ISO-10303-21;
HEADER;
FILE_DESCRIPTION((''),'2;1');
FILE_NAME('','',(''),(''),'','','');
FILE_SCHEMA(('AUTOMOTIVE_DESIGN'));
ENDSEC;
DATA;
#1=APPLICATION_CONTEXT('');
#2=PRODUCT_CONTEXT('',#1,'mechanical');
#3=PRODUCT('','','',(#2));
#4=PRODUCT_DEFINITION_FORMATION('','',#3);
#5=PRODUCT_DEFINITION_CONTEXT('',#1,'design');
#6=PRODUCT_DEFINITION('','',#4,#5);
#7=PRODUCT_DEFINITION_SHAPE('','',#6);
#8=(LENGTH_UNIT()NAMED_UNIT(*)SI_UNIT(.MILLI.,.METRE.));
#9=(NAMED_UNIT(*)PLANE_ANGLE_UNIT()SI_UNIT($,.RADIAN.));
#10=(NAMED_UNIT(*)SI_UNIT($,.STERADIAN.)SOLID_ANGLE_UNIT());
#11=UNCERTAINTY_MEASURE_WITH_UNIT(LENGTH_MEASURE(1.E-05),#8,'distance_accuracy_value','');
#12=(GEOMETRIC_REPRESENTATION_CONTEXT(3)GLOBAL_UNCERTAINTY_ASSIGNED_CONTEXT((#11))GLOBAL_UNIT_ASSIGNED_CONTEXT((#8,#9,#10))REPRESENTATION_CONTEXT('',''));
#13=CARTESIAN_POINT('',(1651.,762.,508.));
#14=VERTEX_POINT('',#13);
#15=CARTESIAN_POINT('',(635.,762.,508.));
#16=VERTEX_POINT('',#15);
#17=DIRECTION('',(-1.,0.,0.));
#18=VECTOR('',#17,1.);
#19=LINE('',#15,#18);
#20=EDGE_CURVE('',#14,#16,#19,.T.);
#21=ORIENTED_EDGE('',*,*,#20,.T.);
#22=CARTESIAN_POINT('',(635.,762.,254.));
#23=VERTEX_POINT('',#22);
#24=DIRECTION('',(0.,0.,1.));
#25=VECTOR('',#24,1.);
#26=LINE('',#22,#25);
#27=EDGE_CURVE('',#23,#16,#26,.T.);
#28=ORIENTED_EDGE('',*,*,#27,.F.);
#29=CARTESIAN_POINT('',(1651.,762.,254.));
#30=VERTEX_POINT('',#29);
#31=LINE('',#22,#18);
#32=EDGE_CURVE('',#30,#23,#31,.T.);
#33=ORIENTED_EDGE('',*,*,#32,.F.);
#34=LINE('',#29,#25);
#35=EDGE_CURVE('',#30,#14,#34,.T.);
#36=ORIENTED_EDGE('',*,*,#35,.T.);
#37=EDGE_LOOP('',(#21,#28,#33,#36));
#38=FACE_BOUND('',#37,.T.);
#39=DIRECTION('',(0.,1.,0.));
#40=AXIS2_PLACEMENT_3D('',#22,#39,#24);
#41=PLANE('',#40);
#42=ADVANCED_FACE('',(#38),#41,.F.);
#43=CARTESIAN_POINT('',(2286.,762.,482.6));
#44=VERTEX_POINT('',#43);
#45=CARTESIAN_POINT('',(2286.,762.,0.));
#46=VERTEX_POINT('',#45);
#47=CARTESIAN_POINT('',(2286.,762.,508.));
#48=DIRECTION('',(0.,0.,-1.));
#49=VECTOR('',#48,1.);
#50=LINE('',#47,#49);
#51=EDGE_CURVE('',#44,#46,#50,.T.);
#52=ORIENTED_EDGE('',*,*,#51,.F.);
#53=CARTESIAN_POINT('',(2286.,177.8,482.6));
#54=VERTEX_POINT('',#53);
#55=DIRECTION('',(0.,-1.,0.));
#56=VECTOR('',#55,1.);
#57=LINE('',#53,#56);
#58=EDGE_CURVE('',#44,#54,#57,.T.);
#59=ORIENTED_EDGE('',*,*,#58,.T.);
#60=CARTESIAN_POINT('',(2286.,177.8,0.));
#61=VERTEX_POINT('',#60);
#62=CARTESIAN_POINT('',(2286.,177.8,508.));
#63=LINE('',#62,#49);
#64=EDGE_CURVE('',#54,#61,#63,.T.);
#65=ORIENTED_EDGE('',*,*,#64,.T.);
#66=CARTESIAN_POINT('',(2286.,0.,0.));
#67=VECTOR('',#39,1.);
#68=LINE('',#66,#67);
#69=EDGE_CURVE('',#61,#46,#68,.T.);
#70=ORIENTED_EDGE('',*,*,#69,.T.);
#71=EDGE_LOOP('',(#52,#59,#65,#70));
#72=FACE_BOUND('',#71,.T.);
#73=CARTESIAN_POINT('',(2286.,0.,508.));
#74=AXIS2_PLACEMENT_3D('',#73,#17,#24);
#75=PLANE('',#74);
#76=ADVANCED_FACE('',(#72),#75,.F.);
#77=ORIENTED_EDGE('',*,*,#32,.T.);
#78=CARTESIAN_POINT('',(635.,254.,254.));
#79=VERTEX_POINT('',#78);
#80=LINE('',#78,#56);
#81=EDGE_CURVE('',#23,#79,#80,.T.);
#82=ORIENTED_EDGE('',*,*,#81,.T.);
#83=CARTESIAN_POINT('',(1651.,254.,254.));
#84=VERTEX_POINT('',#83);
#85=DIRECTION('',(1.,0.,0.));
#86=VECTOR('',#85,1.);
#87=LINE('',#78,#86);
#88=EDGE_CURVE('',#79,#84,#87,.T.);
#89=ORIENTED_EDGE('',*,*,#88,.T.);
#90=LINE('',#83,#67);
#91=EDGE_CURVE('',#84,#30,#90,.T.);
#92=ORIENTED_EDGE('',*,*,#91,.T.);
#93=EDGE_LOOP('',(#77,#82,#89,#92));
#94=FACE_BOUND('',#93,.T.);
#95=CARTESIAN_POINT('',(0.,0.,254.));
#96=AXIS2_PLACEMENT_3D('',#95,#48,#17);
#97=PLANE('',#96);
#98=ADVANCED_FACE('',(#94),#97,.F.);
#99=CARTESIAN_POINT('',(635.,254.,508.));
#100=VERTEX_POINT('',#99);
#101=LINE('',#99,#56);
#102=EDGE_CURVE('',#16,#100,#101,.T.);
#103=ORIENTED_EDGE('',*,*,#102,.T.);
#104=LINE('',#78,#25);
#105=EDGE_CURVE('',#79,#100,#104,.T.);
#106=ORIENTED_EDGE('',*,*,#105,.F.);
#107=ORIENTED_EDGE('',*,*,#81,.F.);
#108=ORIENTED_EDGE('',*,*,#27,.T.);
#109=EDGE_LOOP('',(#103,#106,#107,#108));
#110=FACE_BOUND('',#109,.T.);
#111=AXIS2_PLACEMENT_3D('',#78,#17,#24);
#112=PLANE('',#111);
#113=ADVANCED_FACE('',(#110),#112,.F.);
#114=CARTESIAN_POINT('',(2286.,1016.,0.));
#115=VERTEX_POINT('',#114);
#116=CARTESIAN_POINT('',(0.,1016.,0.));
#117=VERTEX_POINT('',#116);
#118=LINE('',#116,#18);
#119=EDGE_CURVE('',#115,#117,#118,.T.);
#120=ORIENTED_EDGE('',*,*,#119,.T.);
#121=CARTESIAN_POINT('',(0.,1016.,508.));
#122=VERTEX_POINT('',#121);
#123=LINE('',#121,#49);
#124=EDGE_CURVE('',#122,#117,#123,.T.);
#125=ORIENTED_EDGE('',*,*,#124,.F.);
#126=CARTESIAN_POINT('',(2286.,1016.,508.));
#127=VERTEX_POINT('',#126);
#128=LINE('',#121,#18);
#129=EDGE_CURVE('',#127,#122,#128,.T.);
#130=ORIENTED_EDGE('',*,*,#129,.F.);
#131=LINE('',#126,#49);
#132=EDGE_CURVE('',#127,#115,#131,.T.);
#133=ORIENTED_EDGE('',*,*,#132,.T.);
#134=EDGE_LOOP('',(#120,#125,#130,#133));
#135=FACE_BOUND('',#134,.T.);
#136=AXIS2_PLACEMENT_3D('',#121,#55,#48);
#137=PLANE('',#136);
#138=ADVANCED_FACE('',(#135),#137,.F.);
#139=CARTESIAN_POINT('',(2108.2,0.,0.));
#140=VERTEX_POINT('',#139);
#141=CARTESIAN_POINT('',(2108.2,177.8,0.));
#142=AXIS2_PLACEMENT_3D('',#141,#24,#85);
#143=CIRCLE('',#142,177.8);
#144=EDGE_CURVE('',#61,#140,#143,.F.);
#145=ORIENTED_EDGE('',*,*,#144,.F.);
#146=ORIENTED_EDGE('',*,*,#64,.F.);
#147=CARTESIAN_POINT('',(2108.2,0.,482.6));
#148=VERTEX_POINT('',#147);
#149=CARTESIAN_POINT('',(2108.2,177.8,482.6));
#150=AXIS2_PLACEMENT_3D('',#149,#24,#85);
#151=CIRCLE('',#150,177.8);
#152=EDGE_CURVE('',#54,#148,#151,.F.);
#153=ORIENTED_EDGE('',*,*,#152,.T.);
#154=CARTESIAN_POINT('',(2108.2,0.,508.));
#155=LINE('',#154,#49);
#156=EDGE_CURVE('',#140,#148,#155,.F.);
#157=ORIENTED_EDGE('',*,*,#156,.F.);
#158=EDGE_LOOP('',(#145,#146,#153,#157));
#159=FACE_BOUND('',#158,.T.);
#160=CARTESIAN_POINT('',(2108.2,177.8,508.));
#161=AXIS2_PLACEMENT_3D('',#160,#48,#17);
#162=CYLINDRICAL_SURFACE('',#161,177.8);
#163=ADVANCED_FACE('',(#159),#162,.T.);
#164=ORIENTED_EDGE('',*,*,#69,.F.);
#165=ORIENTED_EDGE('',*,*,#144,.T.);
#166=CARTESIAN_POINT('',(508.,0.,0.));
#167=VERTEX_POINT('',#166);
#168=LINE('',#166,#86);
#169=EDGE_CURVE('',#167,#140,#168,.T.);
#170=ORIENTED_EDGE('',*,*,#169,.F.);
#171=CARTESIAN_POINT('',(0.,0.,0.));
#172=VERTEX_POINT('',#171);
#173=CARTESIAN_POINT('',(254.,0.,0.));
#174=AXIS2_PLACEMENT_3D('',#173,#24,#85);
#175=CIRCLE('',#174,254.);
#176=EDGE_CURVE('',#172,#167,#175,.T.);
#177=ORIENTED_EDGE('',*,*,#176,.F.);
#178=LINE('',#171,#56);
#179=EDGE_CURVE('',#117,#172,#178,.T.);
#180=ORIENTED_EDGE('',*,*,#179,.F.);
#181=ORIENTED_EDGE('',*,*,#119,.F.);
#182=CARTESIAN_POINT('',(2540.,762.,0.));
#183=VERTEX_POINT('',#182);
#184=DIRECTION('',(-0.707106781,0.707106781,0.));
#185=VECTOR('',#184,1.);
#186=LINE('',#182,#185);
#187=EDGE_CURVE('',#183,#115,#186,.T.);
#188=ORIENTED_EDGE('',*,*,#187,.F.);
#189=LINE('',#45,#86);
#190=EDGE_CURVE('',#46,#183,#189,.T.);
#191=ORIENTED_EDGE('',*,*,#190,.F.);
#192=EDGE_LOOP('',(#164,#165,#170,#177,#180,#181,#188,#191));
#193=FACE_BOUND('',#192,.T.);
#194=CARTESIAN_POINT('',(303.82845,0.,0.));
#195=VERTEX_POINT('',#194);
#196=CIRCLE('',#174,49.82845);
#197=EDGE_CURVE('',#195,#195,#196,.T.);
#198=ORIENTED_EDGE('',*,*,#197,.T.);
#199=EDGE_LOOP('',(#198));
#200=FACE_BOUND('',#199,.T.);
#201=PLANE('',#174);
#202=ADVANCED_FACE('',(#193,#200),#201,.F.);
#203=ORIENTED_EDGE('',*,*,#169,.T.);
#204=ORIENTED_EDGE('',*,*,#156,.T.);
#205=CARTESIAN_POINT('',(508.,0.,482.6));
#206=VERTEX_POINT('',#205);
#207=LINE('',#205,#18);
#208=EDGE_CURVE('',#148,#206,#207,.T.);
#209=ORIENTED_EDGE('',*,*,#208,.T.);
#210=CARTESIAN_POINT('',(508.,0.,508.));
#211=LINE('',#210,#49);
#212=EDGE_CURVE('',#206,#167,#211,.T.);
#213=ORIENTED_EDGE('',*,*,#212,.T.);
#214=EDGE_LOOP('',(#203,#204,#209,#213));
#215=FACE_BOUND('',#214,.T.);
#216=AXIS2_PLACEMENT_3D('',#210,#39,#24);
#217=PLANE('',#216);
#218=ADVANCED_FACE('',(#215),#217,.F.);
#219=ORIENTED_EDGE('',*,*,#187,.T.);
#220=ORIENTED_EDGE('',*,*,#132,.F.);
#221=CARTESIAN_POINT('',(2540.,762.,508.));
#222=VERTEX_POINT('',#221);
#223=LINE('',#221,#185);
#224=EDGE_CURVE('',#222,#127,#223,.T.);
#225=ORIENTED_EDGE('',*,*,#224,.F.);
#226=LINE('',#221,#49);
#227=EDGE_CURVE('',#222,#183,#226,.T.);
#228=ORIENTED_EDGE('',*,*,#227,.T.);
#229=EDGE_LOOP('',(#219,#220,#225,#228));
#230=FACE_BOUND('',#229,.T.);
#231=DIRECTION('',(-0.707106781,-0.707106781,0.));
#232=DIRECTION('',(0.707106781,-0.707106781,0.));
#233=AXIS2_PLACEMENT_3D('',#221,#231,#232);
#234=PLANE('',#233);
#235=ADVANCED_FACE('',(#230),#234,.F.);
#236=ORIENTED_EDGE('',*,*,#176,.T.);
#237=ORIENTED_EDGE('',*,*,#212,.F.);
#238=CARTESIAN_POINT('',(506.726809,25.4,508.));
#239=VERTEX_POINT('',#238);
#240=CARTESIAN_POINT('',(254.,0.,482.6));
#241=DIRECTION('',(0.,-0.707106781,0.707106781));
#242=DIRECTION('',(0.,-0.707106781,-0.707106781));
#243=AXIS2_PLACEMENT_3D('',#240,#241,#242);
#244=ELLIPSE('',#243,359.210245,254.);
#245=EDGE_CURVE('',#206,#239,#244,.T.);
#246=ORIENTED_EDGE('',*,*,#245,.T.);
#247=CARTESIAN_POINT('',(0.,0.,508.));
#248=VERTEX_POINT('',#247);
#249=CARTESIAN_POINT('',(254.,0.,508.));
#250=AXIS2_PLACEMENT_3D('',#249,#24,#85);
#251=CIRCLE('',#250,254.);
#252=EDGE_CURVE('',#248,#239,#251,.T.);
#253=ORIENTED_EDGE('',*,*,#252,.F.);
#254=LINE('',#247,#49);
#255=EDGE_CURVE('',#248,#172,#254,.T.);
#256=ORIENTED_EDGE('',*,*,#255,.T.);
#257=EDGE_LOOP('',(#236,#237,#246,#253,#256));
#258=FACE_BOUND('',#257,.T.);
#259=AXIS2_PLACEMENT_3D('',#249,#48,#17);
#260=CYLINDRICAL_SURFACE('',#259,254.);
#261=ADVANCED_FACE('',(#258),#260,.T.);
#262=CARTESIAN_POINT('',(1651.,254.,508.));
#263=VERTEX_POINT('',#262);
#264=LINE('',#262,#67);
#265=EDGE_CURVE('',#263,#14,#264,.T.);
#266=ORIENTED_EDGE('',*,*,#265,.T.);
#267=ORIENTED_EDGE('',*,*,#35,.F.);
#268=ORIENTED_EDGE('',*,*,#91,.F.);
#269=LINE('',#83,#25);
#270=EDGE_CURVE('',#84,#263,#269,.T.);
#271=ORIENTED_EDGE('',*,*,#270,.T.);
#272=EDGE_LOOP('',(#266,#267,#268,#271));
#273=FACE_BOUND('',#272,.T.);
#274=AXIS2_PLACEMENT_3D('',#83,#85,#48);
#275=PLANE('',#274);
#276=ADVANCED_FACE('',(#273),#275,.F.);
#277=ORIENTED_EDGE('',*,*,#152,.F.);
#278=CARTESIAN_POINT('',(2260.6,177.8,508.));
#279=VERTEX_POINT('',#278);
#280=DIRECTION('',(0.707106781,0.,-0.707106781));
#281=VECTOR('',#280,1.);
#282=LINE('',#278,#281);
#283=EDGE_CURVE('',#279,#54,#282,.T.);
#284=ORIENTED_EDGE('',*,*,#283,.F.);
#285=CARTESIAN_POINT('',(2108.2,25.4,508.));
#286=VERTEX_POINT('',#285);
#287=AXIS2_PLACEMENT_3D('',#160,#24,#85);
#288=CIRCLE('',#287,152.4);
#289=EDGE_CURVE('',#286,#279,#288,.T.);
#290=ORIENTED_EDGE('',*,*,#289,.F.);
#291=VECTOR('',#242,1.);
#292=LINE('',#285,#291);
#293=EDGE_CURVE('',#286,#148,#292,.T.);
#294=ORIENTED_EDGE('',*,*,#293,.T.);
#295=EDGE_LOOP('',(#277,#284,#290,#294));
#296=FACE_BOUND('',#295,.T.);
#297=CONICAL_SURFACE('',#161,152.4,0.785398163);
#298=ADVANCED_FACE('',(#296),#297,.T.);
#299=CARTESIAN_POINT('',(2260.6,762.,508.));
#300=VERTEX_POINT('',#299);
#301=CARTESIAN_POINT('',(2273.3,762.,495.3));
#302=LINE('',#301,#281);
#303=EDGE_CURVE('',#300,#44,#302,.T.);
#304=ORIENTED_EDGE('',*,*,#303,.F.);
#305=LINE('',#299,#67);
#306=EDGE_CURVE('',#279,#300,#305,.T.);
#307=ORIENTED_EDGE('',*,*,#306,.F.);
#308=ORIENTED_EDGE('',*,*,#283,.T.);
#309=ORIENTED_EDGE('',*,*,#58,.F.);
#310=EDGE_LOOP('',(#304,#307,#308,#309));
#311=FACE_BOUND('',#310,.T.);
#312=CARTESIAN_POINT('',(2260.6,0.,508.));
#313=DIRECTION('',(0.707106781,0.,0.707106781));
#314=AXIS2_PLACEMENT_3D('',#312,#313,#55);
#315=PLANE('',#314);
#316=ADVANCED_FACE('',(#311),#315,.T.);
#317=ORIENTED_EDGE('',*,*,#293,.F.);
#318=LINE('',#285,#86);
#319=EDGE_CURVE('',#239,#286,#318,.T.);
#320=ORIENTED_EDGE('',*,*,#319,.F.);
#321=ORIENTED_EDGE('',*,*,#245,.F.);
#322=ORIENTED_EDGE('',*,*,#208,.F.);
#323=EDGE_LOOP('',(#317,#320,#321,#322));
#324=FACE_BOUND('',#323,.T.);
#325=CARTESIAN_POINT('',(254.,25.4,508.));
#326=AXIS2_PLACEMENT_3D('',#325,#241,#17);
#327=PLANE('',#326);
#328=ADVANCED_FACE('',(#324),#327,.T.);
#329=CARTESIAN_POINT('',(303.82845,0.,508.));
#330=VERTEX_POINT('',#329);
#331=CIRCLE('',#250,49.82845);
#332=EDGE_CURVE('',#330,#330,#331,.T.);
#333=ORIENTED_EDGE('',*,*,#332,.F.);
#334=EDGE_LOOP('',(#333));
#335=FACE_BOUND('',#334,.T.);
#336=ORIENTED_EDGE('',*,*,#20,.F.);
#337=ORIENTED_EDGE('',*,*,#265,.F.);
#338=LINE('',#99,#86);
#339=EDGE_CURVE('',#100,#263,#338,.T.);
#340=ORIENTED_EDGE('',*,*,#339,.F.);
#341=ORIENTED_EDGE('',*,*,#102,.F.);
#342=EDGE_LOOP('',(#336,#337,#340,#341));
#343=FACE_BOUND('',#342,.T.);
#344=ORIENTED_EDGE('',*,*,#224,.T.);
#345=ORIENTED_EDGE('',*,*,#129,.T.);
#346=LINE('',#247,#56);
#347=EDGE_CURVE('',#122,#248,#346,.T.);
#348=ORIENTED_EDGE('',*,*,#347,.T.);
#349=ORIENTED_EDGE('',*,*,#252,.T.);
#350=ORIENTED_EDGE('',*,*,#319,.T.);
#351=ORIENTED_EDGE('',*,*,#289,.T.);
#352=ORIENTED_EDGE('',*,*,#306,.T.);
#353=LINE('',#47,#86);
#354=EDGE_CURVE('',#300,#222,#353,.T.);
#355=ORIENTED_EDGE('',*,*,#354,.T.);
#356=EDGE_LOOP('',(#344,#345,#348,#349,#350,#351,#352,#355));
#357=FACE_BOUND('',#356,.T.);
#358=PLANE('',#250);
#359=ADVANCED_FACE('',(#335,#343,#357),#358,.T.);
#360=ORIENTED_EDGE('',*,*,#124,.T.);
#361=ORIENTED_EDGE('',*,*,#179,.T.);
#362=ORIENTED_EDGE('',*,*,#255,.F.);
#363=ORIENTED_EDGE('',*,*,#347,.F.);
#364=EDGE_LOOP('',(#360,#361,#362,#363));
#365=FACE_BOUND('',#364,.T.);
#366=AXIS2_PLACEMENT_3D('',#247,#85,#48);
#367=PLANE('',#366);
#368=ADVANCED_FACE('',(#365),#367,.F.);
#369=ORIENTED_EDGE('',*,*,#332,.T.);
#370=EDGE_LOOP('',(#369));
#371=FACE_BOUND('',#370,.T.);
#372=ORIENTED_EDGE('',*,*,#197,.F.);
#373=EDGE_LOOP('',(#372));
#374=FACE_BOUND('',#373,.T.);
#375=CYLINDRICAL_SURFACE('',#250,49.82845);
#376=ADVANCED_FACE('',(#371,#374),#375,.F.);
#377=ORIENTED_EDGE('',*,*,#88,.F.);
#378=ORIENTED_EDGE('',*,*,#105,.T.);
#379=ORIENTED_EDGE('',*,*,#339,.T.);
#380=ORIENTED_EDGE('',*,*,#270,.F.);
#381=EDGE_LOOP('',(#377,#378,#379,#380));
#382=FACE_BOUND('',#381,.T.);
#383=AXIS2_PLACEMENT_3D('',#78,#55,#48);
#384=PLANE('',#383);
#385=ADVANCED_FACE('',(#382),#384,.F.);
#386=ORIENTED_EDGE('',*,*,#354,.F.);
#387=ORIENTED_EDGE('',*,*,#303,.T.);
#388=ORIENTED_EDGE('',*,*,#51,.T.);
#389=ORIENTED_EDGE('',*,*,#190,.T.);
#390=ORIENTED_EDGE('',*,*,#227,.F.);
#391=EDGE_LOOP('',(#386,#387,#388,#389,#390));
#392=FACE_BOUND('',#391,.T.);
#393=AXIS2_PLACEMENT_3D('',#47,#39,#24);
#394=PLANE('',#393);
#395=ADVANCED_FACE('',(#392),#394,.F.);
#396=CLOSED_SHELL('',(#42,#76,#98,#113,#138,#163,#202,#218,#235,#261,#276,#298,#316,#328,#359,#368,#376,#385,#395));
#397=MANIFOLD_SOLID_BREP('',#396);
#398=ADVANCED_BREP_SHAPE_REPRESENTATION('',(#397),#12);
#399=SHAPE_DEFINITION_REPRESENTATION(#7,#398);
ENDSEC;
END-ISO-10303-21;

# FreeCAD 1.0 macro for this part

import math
import FreeCAD as App
import Part
import Sketcher
Q = App.Units.Quantity


def edges_at(feature, points):
    """Names of the edges that pass closest to the given points."""
    edges = feature.Shape.Edges
    near = lambda p: min(range(len(edges)), key=lambda i: edges[i].distToShape(Part.Vertex(*p))[0])
    return sorted({f"Edge{near(p) + 1}" for p in points})


def add_polygon(sketch, points):
    """Adds a closed chain of lines whose ends are joined by coincident constraints."""
    first, n = sketch.GeometryCount, len(points)
    for a, b in zip(points, points[1:] + points[:1]):
        sketch.addGeometry(Part.LineSegment(App.Vector(*a, 0), App.Vector(*b, 0)), False)
    for i in range(n):
        sketch.addConstraint(Sketcher.Constraint("Coincident", first + i, 2, first + (i + 1) % n, 1))

doc = App.newDocument("Part")
body = doc.addObject("PartDesign::Body", "Body")

# Sketch on XY plane
sketch1 = body.newObject("Sketcher::SketchObject", "Sketch")
sketch1.AttachmentSupport = (doc.getObject("XY_Plane"), [""])
sketch1.MapMode = "FlatFace"
sketch1.addGeometry([
    Part.LineSegment(App.Vector(2286, 762, 0), App.Vector(2540, 762, 0)),  # 0
    Part.LineSegment(App.Vector(2540, 762, 0), App.Vector(2286, 1016, 0)),  # 1
    Part.LineSegment(App.Vector(2286, 1016, 0), App.Vector(0, 1016, 0)),  # 2
    Part.LineSegment(App.Vector(0, 1016, 0), App.Vector(0, 0, 0)),  # 3
    Part.ArcOfCircle(Part.Circle(App.Vector(254, 0, 0), App.Vector(0, 0, 1), 254), math.radians(180), math.radians(360)),  # 4
    Part.LineSegment(App.Vector(508, 0, 0), App.Vector(2286, 0, 0)),  # 5
    Part.LineSegment(App.Vector(2286, 0, 0), App.Vector(2286, 762, 0)),  # 6
], False)
sketch1.addConstraint([
    Sketcher.Constraint("Coincident", 0, 2, 1, 1),
    Sketcher.Constraint("Coincident", 1, 2, 2, 1),
    Sketcher.Constraint("Coincident", 2, 2, 3, 1),
    Sketcher.Constraint("Tangent", 3, 2, 4, 1),
    Sketcher.Constraint("Coincident", 4, 2, 5, 1),
    Sketcher.Constraint("Coincident", 5, 2, 6, 1),
    Sketcher.Constraint("Coincident", 6, 2, 0, 1),
    Sketcher.Constraint("Horizontal", 0),
    Sketcher.Constraint("Horizontal", 2),
    Sketcher.Constraint("Vertical", 3),
    Sketcher.Constraint("Horizontal", 5),
    Sketcher.Constraint("Vertical", 6),
    Sketcher.Constraint("Coincident", 3, 2, -1, 1),
    Sketcher.Constraint("PointOnObject", 4, 2, -1),
    Sketcher.Constraint("Vertical", 1, 2, 5, 2),
    Sketcher.Constraint("Radius", 4, Q("10 in")),
    Sketcher.Constraint("DistanceX", 0, 1, 0, 2, Q("10 in")),
    Sketcher.Constraint("DistanceX", 2, 2, 2, 1, Q("90 in")),
    Sketcher.Constraint("DistanceY", 3, 2, 3, 1, Q("40 in")),
    Sketcher.Constraint("DistanceY", 6, 1, 6, 2, Q("30 in")),
])
pad1 = body.newObject("PartDesign::Pad", "Pad")
pad1.Profile = sketch1
pad1.Length = Q("20 in")

# Sketch on XY plane
sketch2 = body.newObject("Sketcher::SketchObject", "Sketch001")
sketch2.AttachmentSupport = (doc.getObject("XY_Plane"), [""])
sketch2.MapMode = "FlatFace"
sketch2.AttachmentOffset = App.Placement(App.Vector(0, 0, 20 * 25.4), App.Rotation())
sketch2.addGeometry(Part.Circle(App.Vector(254, 0, 0), App.Vector(0, 0, 1), 50), False)
sketch2.addConstraint([
    Sketcher.Constraint("PointOnObject", 0, 3, -1),
    Sketcher.Constraint("DistanceX", -1, 1, 0, 3, Q("10 in")),
    Sketcher.Constraint("Diameter", 0, Q("3.9235 in")),
])
doc.recompute()
hole = body.newObject("PartDesign::Hole", "Hole")
hole.Profile = sketch2
hole.ThreadType = "None"
hole.Diameter = Q("3.9235 in")
hole.DepthType = "ThroughAll"

# Sketch on XY plane
sketch3 = body.newObject("Sketcher::SketchObject", "Sketch002")
sketch3.AttachmentSupport = (doc.getObject("XY_Plane"), [""])
sketch3.MapMode = "FlatFace"
sketch3.AttachmentOffset = App.Placement(App.Vector(0, 0, 20 * 25.4), App.Rotation())
add_polygon(sketch3, [(635, 762), (635, 254), (1651, 254), (1651, 762)])  # lines 0-3
sketch3.addConstraint([
    Sketcher.Constraint("Vertical", 0),
    Sketcher.Constraint("Horizontal", 1),
    Sketcher.Constraint("Vertical", 2),
    Sketcher.Constraint("Horizontal", 3),
    Sketcher.Constraint("DistanceX", 1, 1, 1, 2, Q("40 in")),
    Sketcher.Constraint("DistanceY", 0, 2, 0, 1, Q("20 in")),
    Sketcher.Constraint("DistanceX", -1, 1, 0, 2, Q("25 in")),
    Sketcher.Constraint("DistanceY", -1, 1, 0, 2, Q("10 in")),
])
pocket1 = body.newObject("PartDesign::Pocket", "Pocket")
pocket1.Profile = sketch3
pocket1.Length = Q("10 in")
doc.recompute()

fillet = body.newObject("PartDesign::Fillet", "Fillet")
fillet.Base = (pocket1, edges_at(pocket1, [(2286, 0, 254)]))
fillet.Radius = Q("7 in")
doc.recompute()

chamfer = body.newObject("PartDesign::Chamfer", "Chamfer")
chamfer.Base = (fillet, edges_at(fillet, [(2286, 469.9, 508), (2233.924, 52.076, 508), (1308.1, 0, 508)]))
chamfer.Size = Q("1 in")

doc.recompute()
